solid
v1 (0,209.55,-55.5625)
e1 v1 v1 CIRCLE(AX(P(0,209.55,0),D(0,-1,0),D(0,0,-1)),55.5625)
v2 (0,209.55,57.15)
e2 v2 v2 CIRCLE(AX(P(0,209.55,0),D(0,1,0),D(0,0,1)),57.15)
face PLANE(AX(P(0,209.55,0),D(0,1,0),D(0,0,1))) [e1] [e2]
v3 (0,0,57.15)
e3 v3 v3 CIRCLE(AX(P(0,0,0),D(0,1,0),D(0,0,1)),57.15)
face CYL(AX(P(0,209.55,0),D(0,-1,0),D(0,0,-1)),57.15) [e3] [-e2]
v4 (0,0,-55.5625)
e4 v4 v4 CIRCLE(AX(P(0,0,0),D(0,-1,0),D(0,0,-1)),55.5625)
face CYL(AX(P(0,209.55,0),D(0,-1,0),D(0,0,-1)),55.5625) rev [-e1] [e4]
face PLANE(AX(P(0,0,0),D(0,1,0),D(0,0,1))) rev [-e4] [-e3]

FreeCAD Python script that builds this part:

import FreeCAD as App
import Part
import Sketcher
Q = App.Units.Quantity

doc = App.newDocument("Part")
body = doc.addObject("PartDesign::Body", "Body")

sketch1 = doc.addObject("Sketcher::SketchObject", "Sketch")
body.addObject(sketch1)
sketch1.AttachmentSupport = (doc.XZ_Plane, [""])
sketch1.MapMode = "FlatFace"
sketch1.addGeometry(Part.Circle(App.Vector(0, 0, 0), App.Vector(0, 0, 1), 57.15), False)
sketch1.addConstraint(Sketcher.Constraint("Coincident", 0, 3, -1, 1))
sketch1.addConstraint(Sketcher.Constraint("Diameter", 0, Q("4.5 in")))
pad1 = doc.addObject("PartDesign::Pad", "Pad")
body.addObject(pad1)
pad1.Profile = sketch1
pad1.Length = Q("8.25 in")
pad1.Reversed = True

sketch2 = doc.addObject("Sketcher::SketchObject", "Sketch001")
body.addObject(sketch2)
sketch2.AttachmentSupport = (doc.XZ_Plane, [""])
sketch2.MapMode = "FlatFace"
sketch2.addGeometry(Part.Circle(App.Vector(0, 0, 0), App.Vector(0, 0, 1), 55.5625), False)
sketch2.addConstraint(Sketcher.Constraint("Coincident", 0, 3, -1, 1))
sketch2.addConstraint(Sketcher.Constraint("Diameter", 0, Q("4.375 in")))
pocket1 = doc.addObject("PartDesign::Pocket", "Pocket")
body.addObject(pocket1)
pocket1.Profile = sketch2
pocket1.Type = "ThroughAll"

doc.recompute()
